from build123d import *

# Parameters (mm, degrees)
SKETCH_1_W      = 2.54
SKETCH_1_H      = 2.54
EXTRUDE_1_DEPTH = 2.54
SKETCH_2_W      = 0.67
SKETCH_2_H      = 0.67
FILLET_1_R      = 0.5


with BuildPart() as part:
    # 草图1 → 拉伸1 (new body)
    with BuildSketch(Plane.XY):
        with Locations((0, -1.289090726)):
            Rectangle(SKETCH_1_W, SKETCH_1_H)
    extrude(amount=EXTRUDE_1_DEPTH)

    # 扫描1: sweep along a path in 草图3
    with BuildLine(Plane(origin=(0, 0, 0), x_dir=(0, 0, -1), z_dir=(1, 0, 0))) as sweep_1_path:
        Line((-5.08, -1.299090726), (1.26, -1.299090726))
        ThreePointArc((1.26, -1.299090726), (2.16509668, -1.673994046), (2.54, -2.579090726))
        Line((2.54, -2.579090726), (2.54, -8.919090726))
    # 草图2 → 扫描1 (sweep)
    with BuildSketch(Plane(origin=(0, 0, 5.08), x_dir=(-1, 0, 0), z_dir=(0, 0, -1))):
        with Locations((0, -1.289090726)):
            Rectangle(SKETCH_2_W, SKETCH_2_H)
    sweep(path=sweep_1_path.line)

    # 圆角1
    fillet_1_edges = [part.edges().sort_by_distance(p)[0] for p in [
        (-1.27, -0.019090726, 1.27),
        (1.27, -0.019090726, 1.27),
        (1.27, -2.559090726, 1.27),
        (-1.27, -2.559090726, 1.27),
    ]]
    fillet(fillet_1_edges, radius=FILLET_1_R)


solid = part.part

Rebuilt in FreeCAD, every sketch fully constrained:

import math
import FreeCAD as App
import Part
import Sketcher

V = App.Vector


def edges_at(feature, points):
    """Names of the edges that pass closest to the given points."""
    edges = feature.Shape.Edges
    near = lambda p: min(range(len(edges)), key=lambda i: edges[i].distToShape(Part.Vertex(*p))[0])
    return sorted({f"Edge{near(p) + 1}" for p in points})


def add_polygon(sketch, points):
    """Adds a closed chain of lines whose ends are joined by coincident constraints."""
    first, n = sketch.GeometryCount, len(points)
    for a, b in zip(points, points[1:] + points[:1]):
        sketch.addGeometry(Part.LineSegment(App.Vector(*a, 0), App.Vector(*b, 0)), False)
    for i in range(n):
        sketch.addConstraint(Sketcher.Constraint("Coincident", first + i, 2, first + (i + 1) % n, 1))

doc = App.newDocument("Part")
body = doc.addObject("PartDesign::Body", "Body")

# Sketch on XY plane
sketch1 = doc.addObject("Sketcher::SketchObject", "Sketch")
body.addObject(sketch1)
sketch1.AttachmentSupport = (doc.XY_Plane, [""])
sketch1.MapMode = "FlatFace"
add_polygon(sketch1, [(-1.3, 0), (-1.3, -2.6), (1.3, -2.6), (1.3, 0)])  # lines 0-3
sketch1.addConstraint([
    Sketcher.Constraint("Vertical", 0),
    Sketcher.Constraint("Horizontal", 1),
    Sketcher.Constraint("Vertical", 2),
    Sketcher.Constraint("Horizontal", 3),
    Sketcher.Constraint("Equal", 3, 0),
    Sketcher.Constraint("DistanceX", 1, 1, 1, 2, 2.54),
    Sketcher.Constraint("DistanceX", 0, 2, -1, 1, 1.27),
    Sketcher.Constraint("DistanceY", 0, 2, -1, 1, 2.559091),
])
pad1 = doc.addObject("PartDesign::Pad", "Pad")
body.addObject(pad1)
pad1.Profile = sketch1
pad1.Length = 2.54

# Sketch on XY plane
sketch2 = doc.addObject("Sketcher::SketchObject", "Sketch001")
body.addObject(sketch2)
sketch2.AttachmentSupport = (doc.XY_Plane, [""])
sketch2.MapMode = "FlatFace"
sketch2.AttachmentOffset = App.Placement(V(0, 0, 5.08), App.Rotation())
add_polygon(sketch2, [(0.3, -1), (0.3, -1.6), (-0.3, -1.6), (-0.3, -1)])  # lines 0-3
sketch2.addConstraint([
    Sketcher.Constraint("Vertical", 0),
    Sketcher.Constraint("Horizontal", 1),
    Sketcher.Constraint("Vertical", 2),
    Sketcher.Constraint("Horizontal", 3),
    Sketcher.Constraint("Equal", 3, 0),
    Sketcher.Constraint("DistanceX", 1, 2, 1, 1, 0.67),
    Sketcher.Constraint("DistanceX", -1, 1, 0, 2, 0.335),
    Sketcher.Constraint("DistanceY", 0, 2, -1, 1, 1.624091),
])

# Sketch on YZ plane
sketch3 = doc.addObject("Sketcher::SketchObject", "Sketch002")
body.addObject(sketch3)
sketch3.AttachmentSupport = (doc.YZ_Plane, [""])
sketch3.MapMode = "FlatFace"
sketch3.addGeometry([
    Part.LineSegment(V(-1.3, 5.1, 0), V(-1.3, -1.3, 0)),
    Part.ArcOfCircle(Part.Circle(V(-2.6, -1.3, 0), V(0, 0, 1), 1.3), math.radians(-90), math.radians(0)),
    Part.LineSegment(V(-2.6, -2.5, 0), V(-8.9, -2.5, 0)),
], False)
sketch3.addConstraint([
    Sketcher.Constraint("Tangent", 0, 2, 1, 2),
    Sketcher.Constraint("Tangent", 1, 1, 2, 1),
    Sketcher.Constraint("Vertical", 0),
    Sketcher.Constraint("Horizontal", 2),
    Sketcher.Constraint("Equal", 2, 0),
    Sketcher.Constraint("Radius", 1, 1.28),
    Sketcher.Constraint("DistanceX", 2, 2, 2, 1, 6.34),
    Sketcher.Constraint("DistanceY", 1, 3, -1, 1, 1.26),
    Sketcher.Constraint("DistanceX", 1, 3, -1, 1, 2.579091),
])
doc.recompute()

additivepipe = doc.addObject("PartDesign::AdditivePipe", "AdditivePipe")
body.addObject(additivepipe)
additivepipe.Profile = sketch2
additivepipe.Spine = (sketch3, ["Edge1", "Edge2", "Edge3"])
doc.recompute()

fillet = doc.addObject("PartDesign::Fillet", "Fillet")
body.addObject(fillet)
fillet.Base = (additivepipe, edges_at(additivepipe, [
    (-1.27, -0.019, 1.27),
    (1.27, -0.019, 1.27),
    (1.27, -2.559, 1.27),
    (-1.27, -2.559, 1.27),
]))
fillet.Radius = 0.5

doc.recompute()
